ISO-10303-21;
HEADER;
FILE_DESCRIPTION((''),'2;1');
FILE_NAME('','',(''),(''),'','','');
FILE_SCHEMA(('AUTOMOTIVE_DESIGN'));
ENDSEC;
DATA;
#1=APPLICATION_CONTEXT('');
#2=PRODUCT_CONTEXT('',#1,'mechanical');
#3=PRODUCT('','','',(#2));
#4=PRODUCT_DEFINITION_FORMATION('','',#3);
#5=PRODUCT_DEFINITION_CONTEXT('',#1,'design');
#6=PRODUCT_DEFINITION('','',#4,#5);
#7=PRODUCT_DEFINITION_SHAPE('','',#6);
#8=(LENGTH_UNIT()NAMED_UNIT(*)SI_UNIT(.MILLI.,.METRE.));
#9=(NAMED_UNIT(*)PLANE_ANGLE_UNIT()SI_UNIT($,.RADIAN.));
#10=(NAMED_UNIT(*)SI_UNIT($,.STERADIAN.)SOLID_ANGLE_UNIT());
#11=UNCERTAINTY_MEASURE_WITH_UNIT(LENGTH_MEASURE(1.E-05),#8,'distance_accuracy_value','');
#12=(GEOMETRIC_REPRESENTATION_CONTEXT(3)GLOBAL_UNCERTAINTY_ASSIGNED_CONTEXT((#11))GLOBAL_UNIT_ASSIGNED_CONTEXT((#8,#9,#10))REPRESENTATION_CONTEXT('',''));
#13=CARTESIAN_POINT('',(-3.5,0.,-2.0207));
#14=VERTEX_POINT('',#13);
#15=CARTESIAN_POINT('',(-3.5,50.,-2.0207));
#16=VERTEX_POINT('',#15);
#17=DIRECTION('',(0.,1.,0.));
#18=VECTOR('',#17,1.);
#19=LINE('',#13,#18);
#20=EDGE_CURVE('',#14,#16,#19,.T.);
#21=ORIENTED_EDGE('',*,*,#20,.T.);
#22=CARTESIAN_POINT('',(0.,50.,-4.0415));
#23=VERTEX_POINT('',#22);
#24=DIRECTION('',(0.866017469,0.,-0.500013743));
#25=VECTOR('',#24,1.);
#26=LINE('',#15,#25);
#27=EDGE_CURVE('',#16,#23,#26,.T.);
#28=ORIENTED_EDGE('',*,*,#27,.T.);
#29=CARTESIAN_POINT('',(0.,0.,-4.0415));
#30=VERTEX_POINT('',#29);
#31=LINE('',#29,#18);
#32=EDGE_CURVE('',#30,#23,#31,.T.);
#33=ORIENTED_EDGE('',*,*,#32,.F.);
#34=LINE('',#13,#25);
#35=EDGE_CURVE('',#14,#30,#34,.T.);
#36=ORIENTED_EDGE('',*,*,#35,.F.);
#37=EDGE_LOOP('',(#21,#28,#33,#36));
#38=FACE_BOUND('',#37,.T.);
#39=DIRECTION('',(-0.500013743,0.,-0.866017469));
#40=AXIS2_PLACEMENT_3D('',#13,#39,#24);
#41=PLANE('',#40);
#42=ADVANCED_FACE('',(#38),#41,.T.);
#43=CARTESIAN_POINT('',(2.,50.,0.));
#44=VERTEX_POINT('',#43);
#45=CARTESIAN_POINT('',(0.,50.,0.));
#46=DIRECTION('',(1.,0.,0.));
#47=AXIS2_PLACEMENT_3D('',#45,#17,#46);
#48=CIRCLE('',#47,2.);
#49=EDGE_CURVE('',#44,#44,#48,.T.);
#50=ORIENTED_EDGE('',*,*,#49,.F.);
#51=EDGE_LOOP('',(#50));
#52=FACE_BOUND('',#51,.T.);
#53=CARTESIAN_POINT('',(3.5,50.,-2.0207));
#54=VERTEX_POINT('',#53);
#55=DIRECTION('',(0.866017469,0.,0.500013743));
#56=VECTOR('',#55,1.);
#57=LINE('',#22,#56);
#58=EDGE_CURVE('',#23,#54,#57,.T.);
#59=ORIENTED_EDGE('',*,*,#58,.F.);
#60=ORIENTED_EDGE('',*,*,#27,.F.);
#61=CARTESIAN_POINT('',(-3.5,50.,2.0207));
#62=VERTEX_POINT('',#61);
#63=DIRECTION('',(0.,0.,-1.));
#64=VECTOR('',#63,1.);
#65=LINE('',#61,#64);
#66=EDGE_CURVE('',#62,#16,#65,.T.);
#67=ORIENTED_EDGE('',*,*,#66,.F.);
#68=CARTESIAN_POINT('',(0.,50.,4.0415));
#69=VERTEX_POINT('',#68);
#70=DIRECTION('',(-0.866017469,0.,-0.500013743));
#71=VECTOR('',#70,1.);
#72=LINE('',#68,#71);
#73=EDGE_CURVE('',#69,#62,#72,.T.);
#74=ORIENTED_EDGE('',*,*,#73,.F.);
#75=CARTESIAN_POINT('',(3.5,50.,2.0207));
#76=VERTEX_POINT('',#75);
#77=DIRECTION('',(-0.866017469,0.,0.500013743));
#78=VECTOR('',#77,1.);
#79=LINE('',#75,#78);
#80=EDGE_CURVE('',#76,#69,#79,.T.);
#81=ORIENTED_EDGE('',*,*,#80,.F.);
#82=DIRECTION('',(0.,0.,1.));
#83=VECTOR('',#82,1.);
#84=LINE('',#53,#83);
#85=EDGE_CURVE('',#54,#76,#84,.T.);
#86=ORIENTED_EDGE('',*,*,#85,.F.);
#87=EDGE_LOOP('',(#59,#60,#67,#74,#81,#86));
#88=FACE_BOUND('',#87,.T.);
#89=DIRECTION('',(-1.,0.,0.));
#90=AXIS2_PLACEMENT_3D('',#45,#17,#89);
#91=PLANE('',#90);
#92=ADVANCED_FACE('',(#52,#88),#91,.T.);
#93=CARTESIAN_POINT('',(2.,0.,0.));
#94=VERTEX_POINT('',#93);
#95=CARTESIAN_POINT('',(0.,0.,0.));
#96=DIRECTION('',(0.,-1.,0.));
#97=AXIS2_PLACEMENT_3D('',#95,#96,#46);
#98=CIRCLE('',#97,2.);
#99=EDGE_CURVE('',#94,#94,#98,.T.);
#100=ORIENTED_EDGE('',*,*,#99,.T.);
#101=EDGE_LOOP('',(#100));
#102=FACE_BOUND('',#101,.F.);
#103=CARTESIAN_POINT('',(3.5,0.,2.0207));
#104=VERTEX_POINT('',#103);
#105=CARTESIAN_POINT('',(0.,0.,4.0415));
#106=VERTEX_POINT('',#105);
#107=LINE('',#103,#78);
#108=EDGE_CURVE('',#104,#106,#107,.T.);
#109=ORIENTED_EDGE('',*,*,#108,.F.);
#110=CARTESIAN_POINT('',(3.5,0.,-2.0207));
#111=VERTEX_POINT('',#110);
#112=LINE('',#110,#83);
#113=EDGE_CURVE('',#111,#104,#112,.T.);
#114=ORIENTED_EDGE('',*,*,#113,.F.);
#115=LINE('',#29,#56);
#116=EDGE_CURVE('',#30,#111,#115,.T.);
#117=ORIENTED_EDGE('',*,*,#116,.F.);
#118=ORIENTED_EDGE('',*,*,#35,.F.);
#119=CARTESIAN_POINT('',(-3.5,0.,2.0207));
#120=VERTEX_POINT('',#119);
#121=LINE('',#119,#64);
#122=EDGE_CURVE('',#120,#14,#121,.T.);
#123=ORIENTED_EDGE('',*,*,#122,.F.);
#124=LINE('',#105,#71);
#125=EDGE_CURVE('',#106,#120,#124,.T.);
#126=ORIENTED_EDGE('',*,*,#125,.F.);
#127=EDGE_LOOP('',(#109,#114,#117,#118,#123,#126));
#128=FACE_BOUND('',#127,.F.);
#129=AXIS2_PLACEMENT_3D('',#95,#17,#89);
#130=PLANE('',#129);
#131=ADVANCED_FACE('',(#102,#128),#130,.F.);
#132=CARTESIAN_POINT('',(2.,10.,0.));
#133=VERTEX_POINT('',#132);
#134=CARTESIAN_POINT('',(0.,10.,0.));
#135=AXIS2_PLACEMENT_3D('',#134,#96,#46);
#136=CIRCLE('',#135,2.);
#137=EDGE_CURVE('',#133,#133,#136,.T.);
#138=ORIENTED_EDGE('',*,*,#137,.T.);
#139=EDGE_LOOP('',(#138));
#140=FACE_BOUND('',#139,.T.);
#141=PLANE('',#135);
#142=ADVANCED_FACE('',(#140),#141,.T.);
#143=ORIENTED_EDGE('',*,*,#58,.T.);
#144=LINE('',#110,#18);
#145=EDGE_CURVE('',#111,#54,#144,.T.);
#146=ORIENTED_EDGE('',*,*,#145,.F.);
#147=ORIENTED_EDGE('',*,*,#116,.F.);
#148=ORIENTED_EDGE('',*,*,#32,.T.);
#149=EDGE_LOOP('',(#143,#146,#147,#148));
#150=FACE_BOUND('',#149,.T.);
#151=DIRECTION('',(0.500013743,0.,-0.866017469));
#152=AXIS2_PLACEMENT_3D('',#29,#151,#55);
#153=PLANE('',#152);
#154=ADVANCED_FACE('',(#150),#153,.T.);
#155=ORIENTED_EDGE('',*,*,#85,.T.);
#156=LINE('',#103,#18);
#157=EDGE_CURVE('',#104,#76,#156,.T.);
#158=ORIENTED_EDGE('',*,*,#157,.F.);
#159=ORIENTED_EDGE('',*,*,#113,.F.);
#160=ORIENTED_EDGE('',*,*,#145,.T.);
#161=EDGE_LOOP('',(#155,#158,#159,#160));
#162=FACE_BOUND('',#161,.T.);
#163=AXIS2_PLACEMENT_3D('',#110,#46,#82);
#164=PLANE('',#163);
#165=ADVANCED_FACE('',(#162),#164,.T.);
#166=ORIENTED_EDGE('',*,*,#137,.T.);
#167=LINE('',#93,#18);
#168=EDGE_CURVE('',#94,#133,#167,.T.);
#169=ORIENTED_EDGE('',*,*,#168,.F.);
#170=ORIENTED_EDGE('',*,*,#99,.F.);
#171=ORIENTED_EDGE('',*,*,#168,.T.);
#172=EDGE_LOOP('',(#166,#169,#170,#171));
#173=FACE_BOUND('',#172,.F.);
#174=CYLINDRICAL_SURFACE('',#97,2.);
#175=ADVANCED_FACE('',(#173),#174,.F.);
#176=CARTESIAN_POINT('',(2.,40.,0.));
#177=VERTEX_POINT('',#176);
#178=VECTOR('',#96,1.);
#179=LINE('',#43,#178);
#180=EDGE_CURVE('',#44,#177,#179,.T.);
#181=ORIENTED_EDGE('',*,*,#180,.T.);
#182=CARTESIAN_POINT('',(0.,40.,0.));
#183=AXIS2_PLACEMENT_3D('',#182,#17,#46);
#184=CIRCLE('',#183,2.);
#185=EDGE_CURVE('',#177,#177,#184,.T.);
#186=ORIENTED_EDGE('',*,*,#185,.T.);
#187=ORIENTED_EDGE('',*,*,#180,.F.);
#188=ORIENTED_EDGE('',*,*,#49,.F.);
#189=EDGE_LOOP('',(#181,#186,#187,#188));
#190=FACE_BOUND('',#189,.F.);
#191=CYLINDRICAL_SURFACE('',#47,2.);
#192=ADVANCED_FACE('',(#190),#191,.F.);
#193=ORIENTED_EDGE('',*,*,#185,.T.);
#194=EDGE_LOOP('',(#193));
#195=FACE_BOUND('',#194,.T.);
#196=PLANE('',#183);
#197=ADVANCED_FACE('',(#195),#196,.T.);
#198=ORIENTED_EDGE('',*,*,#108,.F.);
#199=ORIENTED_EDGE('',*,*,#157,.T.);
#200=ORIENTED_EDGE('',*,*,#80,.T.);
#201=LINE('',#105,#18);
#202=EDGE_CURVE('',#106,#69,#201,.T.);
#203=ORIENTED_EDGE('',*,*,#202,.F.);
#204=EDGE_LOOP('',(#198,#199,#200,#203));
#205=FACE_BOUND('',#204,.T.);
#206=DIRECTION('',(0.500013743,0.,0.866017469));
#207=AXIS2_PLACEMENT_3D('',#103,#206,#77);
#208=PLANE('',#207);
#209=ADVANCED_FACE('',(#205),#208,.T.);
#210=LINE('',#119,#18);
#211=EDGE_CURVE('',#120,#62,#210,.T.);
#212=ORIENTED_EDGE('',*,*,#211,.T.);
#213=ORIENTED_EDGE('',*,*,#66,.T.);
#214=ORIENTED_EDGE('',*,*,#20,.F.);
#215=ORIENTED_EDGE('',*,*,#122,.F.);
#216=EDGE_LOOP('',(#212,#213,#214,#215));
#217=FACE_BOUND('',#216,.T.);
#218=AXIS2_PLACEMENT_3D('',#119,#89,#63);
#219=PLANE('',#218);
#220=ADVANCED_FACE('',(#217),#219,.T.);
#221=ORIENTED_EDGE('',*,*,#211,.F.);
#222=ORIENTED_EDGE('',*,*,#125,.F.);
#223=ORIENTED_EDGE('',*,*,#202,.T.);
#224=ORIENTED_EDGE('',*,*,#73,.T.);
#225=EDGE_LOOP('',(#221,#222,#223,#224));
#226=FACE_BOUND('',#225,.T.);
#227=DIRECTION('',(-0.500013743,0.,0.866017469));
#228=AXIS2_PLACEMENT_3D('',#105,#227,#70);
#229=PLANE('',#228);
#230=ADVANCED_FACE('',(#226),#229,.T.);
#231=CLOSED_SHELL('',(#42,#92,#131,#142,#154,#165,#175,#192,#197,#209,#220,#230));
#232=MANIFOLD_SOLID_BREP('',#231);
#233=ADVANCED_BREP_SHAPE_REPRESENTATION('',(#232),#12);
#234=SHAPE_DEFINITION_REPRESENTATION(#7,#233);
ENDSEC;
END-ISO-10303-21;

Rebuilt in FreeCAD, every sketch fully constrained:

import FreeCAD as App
import Part
import Sketcher
Q = App.Units.Quantity


def add_polygon(sketch, points):
    """Adds a closed chain of lines whose ends are joined by coincident constraints."""
    first, n = sketch.GeometryCount, len(points)
    for a, b in zip(points, points[1:] + points[:1]):
        sketch.addGeometry(Part.LineSegment(App.Vector(*a, 0), App.Vector(*b, 0)), False)
    for i in range(n):
        sketch.addConstraint(Sketcher.Constraint("Coincident", first + i, 2, first + (i + 1) % n, 1))

doc = App.newDocument("Part")
body = doc.addObject("PartDesign::Body", "Body")

# Sketch on XZ plane
sketch1 = body.newObject("Sketcher::SketchObject", "Sketch")
sketch1.AttachmentSupport = (doc.getObject("XZ_Plane"), [""])
sketch1.MapMode = "FlatFace"
add_polygon(sketch1, [(3.5, -2.0207), (0, -4.0415), (-3.5, -2.0207), (-3.5, 2.0207), (0, 4.0415), (3.5, 2.0207)])  # lines 0-5
sketch1.addConstraint(Sketcher.Constraint("Vertical", 2))
sketch1.addConstraint(Sketcher.Constraint("Vertical", 5))
sketch1.addConstraint(Sketcher.Constraint("Symmetric", 0, 2, 3, 2, -1, 1))
sketch1.addConstraint(Sketcher.Constraint("Symmetric", 1, 2, 4, 2, -1, 1))
sketch1.addConstraint(Sketcher.Constraint("PointOnObject", 0, 2, -2))
sketch1.addConstraint(Sketcher.Constraint("Parallel", 0, 3))
sketch1.addConstraint(Sketcher.Constraint("Horizontal", 2, 2, 4, 2))
sketch1.addConstraint(Sketcher.Constraint("DistanceX", 2, 2, 4, 2, 7.0))
sketch1.addConstraint(Sketcher.Constraint("Angle", 0, Q("-149.999 deg")))
sketch1.addConstraint(Sketcher.Constraint("DistanceY", 2, 1, 2, 2, 4.0414))
pad1 = body.newObject("PartDesign::Pad", "Pad")
pad1.Profile = sketch1
pad1.Length = 50
pad1.Reversed = True

# Sketch on XZ plane
sketch2 = body.newObject("Sketcher::SketchObject", "Sketch001")
sketch2.AttachmentSupport = (doc.getObject("XZ_Plane"), [""])
sketch2.MapMode = "FlatFace"
sketch2.addGeometry(Part.Circle(App.Vector(0, 0, 0), App.Vector(0, 0, 1), 2), False)
sketch2.addConstraint(Sketcher.Constraint("Coincident", 0, 3, -1, 1))
sketch2.addConstraint(Sketcher.Constraint("Diameter", 0, 4.0))
pocket1 = body.newObject("PartDesign::Pocket", "Pocket")
pocket1.Profile = sketch2
pocket1.Length = 10

# Sketch on XZ plane
sketch3 = body.newObject("Sketcher::SketchObject", "Sketch002")
sketch3.AttachmentSupport = (doc.getObject("XZ_Plane"), [""])
sketch3.MapMode = "FlatFace"
sketch3.AttachmentOffset = App.Placement(App.Vector(0, 0, -50), App.Rotation())
sketch3.addGeometry(Part.Circle(App.Vector(0, 0, 0), App.Vector(0, 0, 1), 2), False)
sketch3.addConstraint(Sketcher.Constraint("Coincident", 0, 3, -1, 1))
sketch3.addConstraint(Sketcher.Constraint("Diameter", 0, 4.0))
pocket2 = body.newObject("PartDesign::Pocket", "Pocket001")
pocket2.Profile = sketch3
pocket2.Length = 10
pocket2.Reversed = True

doc.recompute()
